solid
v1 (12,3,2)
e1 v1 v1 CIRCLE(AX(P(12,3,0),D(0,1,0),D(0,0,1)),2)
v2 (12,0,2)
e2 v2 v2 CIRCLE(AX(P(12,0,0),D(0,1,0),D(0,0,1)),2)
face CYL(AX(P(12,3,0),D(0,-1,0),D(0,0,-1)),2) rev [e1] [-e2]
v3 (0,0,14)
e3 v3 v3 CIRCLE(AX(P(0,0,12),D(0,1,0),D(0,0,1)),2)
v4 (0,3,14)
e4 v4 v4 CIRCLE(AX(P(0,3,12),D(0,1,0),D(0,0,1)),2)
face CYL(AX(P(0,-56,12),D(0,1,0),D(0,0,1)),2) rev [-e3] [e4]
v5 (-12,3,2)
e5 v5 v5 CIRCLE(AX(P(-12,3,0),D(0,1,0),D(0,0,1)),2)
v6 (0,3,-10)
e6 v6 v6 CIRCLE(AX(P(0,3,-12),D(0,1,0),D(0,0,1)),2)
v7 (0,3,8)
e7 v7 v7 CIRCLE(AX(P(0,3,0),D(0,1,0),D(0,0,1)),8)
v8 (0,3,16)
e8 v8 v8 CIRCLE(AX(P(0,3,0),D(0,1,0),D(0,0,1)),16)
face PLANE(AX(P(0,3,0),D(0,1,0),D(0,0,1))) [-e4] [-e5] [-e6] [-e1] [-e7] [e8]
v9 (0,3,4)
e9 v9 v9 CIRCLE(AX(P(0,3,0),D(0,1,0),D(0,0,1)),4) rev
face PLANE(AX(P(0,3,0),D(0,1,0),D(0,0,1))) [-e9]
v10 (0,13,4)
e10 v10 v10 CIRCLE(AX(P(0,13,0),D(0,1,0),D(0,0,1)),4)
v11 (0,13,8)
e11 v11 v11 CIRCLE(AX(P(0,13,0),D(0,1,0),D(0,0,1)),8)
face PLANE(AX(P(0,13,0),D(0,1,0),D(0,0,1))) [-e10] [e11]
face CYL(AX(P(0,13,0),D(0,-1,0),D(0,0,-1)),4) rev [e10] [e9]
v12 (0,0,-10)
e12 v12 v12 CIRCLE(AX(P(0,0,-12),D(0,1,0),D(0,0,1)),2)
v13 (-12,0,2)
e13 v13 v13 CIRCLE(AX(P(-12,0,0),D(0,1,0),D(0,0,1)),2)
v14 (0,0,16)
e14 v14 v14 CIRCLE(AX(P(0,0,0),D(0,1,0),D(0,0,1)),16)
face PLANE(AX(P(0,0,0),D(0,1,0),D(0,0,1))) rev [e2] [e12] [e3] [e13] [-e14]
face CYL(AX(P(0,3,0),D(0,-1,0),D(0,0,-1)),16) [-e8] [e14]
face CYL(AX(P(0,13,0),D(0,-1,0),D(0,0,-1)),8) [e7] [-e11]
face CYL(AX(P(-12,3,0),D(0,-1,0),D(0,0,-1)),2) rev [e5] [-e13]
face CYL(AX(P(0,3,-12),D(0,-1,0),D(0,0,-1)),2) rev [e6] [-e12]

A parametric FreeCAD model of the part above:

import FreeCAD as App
import Part
import Sketcher

V = App.Vector
Q = App.Units.Quantity

doc = App.newDocument("Part")
params = doc.addObject("Spreadsheet::Sheet", "Params")
for row, (alias, value) in enumerate([
    ("sketch1_diameter", "32 mm"),
    ("sketch1_diameter2", "4 mm"),
    ("pad1_length", "3 mm"),
    ("sketch2_diameter", "16 mm"),
    ("sketch2_diameter2", "8 mm"),
    ("pad2_length", "10 mm"),
    ("sketch3_diameter", "4 mm"),
    ("pocket1_length", "59 mm"),
], start=1):
    params.set(f"A{row}", alias)
    params.set(f"B{row}", "=" + value)
    params.setAlias(f"B{row}", alias)

body = doc.addObject("PartDesign::Body", "Body")

# Sketch on XZ plane
sketch1 = body.newObject("Sketcher::SketchObject", "Sketch")
sketch1.AttachmentSupport = (doc.getObject("XZ_Plane"), [""])
sketch1.MapMode = "FlatFace"
sketch1.addGeometry([
    Part.Circle(V(0, 0, 0), V(0, 0, 1), 16),
    Part.Circle(V(-12, 0, 0), V(0, 0, 1), 2),
    Part.Circle(V(12, 0, 0), V(0, 0, 1), 2),
    Part.Circle(V(0, -12, 0), V(0, 0, 1), 2),
], False)
sketch1.addConstraint([
    Sketcher.Constraint("Coincident", 0, 3, -1, 1),
    Sketcher.Constraint("Equal", 1, 2),
    Sketcher.Constraint("Equal", 2, 3),
    Sketcher.Constraint("Symmetric", 1, 3, 2, 3, -1, 1),
    Sketcher.Constraint("PointOnObject", 1, 3, -1),
    Sketcher.Constraint("PointOnObject", 3, 3, -2),
    Sketcher.Constraint("Diameter", 0, Q("32 mm")),
    Sketcher.Constraint("Diameter", 1, Q("4 mm")),
    Sketcher.Constraint("DistanceX", 1, 3, -1, 1, Q("12 mm")),
    Sketcher.Constraint("DistanceY", 3, 3, -1, 1, Q("12 mm")),
])
sketch1.setExpression("Constraints[6]", "Params.sketch1_diameter")
sketch1.setExpression("Constraints[7]", "Params.sketch1_diameter2")
pad1 = body.newObject("PartDesign::Pad", "Pad")
pad1.Profile = sketch1
pad1.setExpression("Length", "Params.pad1_length")
pad1.Reversed = True

# Sketch on XZ plane
sketch2 = body.newObject("Sketcher::SketchObject", "Sketch001")
sketch2.AttachmentSupport = (doc.getObject("XZ_Plane"), [""])
sketch2.MapMode = "FlatFace"
sketch2.AttachmentOffset = App.Placement(V(0, 0, -3), App.Rotation())
sketch2.addGeometry([
    Part.Circle(V(0, 0, 0), V(0, 0, 1), 8),
    Part.Circle(V(0, 0, 0), V(0, 0, 1), 4),
], False)
sketch2.addConstraint([
    Sketcher.Constraint("Coincident", 0, 3, -1, 1),
    Sketcher.Constraint("Coincident", 1, 3, -1, 1),
    Sketcher.Constraint("Diameter", 0, Q("16 mm")),
    Sketcher.Constraint("Diameter", 1, Q("8 mm")),
])
sketch2.setExpression("Constraints[2]", "Params.sketch2_diameter")
sketch2.setExpression("Constraints[3]", "Params.sketch2_diameter2")
pad2 = body.newObject("PartDesign::Pad", "Pad001")
pad2.Profile = sketch2
pad2.setExpression("Length", "Params.pad2_length")
pad2.Reversed = True

# Sketch on XZ plane
sketch3 = body.newObject("Sketcher::SketchObject", "Sketch002")
sketch3.AttachmentSupport = (doc.getObject("XZ_Plane"), [""])
sketch3.MapMode = "FlatFace"
sketch3.AttachmentOffset = App.Placement(V(0, 0, -3), App.Rotation())
sketch3.addGeometry(Part.Circle(V(0, 12, 0), V(0, 0, 1), 2), False)
sketch3.addConstraint([
    Sketcher.Constraint("PointOnObject", 0, 3, -2),
    Sketcher.Constraint("Diameter", 0, Q("4 mm")),
    Sketcher.Constraint("DistanceY", -1, 1, 0, 3, Q("12 mm")),
])
sketch3.setExpression("Constraints[1]", "Params.sketch3_diameter")
pocket1 = body.newObject("PartDesign::Pocket", "Pocket")
pocket1.Profile = sketch3
pocket1.setExpression("Length", "Params.pocket1_length")
pocket1.Reversed = True

doc.recompute()
